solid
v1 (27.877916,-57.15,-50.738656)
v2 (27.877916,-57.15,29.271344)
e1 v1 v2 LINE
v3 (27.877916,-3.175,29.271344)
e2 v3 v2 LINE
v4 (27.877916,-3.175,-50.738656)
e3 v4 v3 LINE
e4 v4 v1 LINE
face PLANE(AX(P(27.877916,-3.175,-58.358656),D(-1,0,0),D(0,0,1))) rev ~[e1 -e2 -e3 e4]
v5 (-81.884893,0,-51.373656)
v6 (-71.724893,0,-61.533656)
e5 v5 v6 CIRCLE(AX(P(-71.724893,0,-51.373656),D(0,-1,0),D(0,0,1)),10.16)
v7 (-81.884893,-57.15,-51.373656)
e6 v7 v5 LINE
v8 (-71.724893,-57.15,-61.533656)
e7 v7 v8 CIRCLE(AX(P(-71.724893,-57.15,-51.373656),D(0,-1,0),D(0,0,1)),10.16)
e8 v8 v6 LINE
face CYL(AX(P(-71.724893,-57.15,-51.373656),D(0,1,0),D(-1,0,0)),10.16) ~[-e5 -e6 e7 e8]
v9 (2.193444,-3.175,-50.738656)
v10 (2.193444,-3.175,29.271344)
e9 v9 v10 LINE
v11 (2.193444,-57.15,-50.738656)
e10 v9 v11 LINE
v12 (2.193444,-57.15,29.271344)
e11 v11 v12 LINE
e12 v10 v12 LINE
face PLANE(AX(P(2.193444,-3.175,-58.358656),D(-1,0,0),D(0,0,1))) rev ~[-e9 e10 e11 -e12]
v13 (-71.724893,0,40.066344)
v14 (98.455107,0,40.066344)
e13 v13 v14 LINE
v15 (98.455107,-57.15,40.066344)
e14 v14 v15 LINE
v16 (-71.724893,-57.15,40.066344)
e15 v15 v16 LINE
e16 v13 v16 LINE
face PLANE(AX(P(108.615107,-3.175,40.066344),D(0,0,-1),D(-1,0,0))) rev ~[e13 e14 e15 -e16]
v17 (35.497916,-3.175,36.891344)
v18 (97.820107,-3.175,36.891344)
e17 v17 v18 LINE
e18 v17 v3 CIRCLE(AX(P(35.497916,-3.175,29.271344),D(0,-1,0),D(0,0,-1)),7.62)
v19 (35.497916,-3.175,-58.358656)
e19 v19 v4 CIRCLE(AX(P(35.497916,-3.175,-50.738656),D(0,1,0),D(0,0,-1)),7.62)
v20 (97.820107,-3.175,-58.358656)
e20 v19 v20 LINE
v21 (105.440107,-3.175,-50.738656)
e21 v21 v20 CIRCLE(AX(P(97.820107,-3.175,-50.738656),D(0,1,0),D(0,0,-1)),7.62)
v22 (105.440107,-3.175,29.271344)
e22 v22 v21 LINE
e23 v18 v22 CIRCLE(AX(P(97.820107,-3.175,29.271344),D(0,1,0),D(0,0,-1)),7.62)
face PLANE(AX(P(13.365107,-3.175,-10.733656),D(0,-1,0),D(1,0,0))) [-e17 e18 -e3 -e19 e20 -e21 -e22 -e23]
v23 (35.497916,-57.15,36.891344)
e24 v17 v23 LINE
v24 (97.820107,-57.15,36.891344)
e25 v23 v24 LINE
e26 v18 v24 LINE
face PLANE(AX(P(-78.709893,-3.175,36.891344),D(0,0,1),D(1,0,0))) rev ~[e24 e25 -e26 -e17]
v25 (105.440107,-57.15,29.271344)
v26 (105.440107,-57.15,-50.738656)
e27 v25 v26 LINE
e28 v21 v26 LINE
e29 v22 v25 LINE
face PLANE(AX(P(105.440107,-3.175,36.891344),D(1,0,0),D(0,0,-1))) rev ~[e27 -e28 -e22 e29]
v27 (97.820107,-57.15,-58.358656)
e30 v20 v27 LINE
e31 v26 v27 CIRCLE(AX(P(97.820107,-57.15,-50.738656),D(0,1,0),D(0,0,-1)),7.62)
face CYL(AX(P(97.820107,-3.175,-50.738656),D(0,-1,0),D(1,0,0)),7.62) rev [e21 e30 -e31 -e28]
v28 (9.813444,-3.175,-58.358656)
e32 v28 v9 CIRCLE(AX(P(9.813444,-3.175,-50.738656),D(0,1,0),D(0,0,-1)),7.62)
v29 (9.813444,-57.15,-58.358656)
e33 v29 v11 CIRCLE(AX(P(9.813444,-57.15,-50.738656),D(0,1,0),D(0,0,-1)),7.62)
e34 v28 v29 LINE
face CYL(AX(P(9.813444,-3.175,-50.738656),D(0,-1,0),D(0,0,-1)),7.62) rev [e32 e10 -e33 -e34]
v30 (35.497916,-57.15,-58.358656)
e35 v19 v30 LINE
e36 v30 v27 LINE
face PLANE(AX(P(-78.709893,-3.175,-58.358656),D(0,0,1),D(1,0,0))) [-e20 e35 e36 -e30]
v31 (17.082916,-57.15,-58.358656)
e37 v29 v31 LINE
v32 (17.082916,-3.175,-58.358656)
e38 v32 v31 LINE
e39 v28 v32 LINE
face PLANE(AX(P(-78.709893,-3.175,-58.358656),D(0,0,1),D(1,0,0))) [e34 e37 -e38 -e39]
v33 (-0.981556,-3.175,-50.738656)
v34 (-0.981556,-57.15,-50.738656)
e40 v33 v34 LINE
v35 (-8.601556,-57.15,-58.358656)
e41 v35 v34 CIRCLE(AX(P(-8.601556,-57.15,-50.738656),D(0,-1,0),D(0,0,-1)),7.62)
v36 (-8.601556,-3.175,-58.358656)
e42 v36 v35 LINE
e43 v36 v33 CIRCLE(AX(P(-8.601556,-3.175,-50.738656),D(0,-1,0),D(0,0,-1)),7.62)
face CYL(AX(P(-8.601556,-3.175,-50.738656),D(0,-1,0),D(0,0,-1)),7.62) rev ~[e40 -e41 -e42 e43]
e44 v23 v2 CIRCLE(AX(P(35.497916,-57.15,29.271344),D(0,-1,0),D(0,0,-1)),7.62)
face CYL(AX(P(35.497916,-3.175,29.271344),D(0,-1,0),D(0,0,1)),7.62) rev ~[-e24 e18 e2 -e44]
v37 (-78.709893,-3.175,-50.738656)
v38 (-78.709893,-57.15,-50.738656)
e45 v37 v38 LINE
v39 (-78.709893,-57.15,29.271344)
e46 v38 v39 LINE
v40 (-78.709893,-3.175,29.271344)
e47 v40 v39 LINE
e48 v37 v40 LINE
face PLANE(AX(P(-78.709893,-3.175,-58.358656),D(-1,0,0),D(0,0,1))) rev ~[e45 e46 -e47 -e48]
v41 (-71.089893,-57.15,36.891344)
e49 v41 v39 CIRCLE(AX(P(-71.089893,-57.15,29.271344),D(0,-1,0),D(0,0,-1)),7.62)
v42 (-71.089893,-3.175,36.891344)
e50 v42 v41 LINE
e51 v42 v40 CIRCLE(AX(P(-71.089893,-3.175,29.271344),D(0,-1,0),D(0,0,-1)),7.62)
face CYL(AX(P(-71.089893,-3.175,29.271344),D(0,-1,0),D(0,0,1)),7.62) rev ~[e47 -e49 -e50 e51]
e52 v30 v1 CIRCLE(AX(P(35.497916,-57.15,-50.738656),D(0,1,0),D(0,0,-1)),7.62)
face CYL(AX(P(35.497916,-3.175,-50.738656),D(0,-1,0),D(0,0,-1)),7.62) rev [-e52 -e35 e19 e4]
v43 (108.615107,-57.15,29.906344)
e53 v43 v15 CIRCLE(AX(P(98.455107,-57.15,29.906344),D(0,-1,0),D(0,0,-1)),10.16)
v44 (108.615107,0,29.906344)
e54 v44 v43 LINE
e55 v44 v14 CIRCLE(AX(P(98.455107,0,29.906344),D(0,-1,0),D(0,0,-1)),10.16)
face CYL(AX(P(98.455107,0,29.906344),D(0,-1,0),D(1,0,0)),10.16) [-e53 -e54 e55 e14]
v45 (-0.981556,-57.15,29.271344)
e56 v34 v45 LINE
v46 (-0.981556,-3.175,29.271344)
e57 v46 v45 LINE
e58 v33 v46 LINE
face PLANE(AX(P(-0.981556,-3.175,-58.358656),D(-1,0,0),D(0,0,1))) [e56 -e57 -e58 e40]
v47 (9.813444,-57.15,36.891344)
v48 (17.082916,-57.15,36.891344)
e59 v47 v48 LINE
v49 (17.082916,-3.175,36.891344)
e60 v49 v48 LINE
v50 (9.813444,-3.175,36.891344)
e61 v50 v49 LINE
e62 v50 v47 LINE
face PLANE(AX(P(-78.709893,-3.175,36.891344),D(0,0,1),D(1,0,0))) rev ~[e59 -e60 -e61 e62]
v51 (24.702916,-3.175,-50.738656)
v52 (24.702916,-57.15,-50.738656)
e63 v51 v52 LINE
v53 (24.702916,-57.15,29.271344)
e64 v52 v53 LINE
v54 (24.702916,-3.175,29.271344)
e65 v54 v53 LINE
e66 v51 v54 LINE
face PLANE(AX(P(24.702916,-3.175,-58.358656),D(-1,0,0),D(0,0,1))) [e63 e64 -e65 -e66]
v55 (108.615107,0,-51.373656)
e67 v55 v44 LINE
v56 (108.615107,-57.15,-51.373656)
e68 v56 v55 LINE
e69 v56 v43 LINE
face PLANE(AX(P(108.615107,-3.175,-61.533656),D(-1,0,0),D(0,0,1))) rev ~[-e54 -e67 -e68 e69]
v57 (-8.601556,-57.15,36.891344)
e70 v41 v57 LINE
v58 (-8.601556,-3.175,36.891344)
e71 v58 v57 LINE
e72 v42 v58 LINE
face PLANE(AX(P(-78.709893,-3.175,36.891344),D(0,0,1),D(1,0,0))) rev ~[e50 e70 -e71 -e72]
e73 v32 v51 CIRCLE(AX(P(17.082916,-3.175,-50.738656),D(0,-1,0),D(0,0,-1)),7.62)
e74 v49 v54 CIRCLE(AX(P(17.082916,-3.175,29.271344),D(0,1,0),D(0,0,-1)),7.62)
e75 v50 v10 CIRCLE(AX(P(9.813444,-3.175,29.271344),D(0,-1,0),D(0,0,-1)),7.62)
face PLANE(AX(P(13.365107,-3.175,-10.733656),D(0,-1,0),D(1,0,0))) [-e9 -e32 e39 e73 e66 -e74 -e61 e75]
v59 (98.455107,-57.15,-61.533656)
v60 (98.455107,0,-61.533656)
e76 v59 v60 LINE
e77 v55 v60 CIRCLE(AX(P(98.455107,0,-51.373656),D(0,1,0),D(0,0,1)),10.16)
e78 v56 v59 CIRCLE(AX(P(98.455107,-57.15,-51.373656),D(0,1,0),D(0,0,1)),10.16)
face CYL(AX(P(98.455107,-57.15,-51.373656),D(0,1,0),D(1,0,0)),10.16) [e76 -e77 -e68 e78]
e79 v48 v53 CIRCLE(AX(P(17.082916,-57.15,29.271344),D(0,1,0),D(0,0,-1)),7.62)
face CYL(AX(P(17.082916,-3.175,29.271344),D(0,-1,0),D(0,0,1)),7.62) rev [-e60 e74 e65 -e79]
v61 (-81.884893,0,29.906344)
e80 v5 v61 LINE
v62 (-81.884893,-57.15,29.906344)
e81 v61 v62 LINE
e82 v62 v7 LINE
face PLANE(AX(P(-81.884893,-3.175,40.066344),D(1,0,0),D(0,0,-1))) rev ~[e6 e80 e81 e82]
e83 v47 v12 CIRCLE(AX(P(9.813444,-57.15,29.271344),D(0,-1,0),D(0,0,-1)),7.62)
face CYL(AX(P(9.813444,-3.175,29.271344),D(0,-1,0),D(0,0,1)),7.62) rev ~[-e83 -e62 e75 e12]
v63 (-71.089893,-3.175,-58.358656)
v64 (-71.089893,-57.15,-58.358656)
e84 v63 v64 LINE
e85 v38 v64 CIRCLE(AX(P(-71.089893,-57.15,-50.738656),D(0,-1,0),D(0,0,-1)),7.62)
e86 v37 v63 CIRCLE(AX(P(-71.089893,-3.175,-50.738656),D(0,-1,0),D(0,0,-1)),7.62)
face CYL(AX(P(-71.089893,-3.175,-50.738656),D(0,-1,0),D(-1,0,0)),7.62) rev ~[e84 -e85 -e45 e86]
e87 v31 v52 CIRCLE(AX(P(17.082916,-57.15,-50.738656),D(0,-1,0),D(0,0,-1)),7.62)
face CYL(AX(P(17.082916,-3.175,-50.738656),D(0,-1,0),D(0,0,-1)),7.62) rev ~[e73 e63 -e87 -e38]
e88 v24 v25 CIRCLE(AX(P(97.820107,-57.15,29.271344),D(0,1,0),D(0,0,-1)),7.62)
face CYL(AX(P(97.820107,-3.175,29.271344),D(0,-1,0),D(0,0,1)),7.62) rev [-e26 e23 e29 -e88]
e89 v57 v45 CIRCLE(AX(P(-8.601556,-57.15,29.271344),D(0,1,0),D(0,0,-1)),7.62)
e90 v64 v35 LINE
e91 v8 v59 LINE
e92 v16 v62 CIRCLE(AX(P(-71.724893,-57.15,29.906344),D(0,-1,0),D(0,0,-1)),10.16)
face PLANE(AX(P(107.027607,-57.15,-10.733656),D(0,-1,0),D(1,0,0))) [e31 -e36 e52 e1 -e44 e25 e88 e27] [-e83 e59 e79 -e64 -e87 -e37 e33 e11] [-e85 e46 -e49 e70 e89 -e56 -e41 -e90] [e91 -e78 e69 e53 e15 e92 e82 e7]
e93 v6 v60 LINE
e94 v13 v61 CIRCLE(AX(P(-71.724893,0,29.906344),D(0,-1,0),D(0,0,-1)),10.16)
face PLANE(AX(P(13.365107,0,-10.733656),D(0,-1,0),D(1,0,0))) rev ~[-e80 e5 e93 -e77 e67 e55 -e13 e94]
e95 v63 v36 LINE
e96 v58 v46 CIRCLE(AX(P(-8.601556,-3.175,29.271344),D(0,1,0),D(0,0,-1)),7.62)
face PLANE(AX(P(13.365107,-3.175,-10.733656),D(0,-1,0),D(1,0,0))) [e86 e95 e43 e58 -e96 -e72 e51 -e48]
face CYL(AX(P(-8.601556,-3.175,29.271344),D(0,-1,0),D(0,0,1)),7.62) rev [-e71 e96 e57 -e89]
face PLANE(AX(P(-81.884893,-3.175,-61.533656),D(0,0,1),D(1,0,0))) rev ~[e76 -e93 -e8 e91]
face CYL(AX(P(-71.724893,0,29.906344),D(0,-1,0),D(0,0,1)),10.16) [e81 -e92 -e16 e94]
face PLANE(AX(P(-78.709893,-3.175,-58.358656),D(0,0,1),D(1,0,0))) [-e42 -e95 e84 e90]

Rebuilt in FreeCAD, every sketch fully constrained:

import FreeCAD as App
import Part
import Sketcher

V = App.Vector
Q = App.Units.Quantity


def edges_at(feature, points):
    """Names of the edges that pass closest to the given points."""
    edges = feature.Shape.Edges
    near = lambda p: min(range(len(edges)), key=lambda i: edges[i].distToShape(Part.Vertex(*p))[0])
    return sorted({f"Edge{near(p) + 1}" for p in points})


def add_polygon(sketch, points):
    """Adds a closed chain of lines whose ends are joined by coincident constraints."""
    first, n = sketch.GeometryCount, len(points)
    for a, b in zip(points, points[1:] + points[:1]):
        sketch.addGeometry(Part.LineSegment(App.Vector(*a, 0), App.Vector(*b, 0)), False)
    for i in range(n):
        sketch.addConstraint(Sketcher.Constraint("Coincident", first + i, 2, first + (i + 1) % n, 1))

doc = App.newDocument("Part")
body = doc.addObject("PartDesign::Body", "Body")

# Sketch on XZ plane
sketch1 = body.newObject("Sketcher::SketchObject", "Sketch")
sketch1.AttachmentSupport = (doc.getObject("XZ_Plane"), [""])
sketch1.MapMode = "FlatFace"
add_polygon(sketch1, [(-81.884893, 40.066344), (-81.884893, -61.533656), (108.615107, -61.533656), (108.615107, 40.066344)])  # lines 0-3
sketch1.addConstraint([
    Sketcher.Constraint("Vertical", 0),
    Sketcher.Constraint("Horizontal", 1),
    Sketcher.Constraint("Vertical", 2),
    Sketcher.Constraint("Horizontal", 3),
    Sketcher.Constraint("DistanceY", 0, 2, 0, 1, Q("4 in")),
    Sketcher.Constraint("DistanceX", 1, 1, 1, 2, Q("7.5 in")),
    Sketcher.Constraint("DistanceX", 0, 2, -1, 1, 81.884893),
    Sketcher.Constraint("DistanceY", 0, 2, -1, 1, 61.533656),
])
pad1 = body.newObject("PartDesign::Pad", "Pad")
pad1.Profile = sketch1
pad1.Length = Q("0.125 in")

# Sketch on XZ plane
sketch2 = body.newObject("Sketcher::SketchObject", "Sketch001")
sketch2.AttachmentSupport = (doc.getObject("XZ_Plane"), [""])
sketch2.MapMode = "FlatFace"
sketch2.AttachmentOffset = App.Placement(V(0, 0, 0.125 * 25.4), App.Rotation())
add_polygon(sketch2, [(108.615107, -61.533656), (108.615107, 40.066344), (-81.884893, 40.066344), (-81.884893, -61.533656)])  # lines 0-3
add_polygon(sketch2, [(-78.709893, -58.358656), (-78.709893, 36.891344), (105.440107, 36.891344), (105.440107, -58.358656)])  # lines 4-7
sketch2.addConstraint([
    Sketcher.Constraint("Vertical", 0),
    Sketcher.Constraint("Horizontal", 1),
    Sketcher.Constraint("Vertical", 2),
    Sketcher.Constraint("Horizontal", 3),
    Sketcher.Constraint("Vertical", 4),
    Sketcher.Constraint("Horizontal", 5),
    Sketcher.Constraint("Vertical", 6),
    Sketcher.Constraint("Horizontal", 7),
    Sketcher.Constraint("DistanceY", 0, 1, 0, 2, Q("4 in")),
    Sketcher.Constraint("DistanceX", 1, 2, 1, 1, Q("7.5 in")),
    Sketcher.Constraint("DistanceX", 5, 1, 5, 2, Q("7.25 in")),
    Sketcher.Constraint("DistanceY", 4, 1, 4, 2, Q("3.75 in")),
    Sketcher.Constraint("DistanceX", 1, 2, 4, 2, Q("0.125 in")),
    Sketcher.Constraint("DistanceY", 4, 2, 1, 2, Q("0.125 in")),
    Sketcher.Constraint("DistanceX", -1, 1, 0, 2, 108.615107),
    Sketcher.Constraint("DistanceY", -1, 1, 0, 2, 40.066344),
])
pad2 = body.newObject("PartDesign::Pad", "Pad001")
pad2.Profile = sketch2
pad2.Length = Q("2.125 in")

# Sketch on XZ plane
sketch3 = body.newObject("Sketcher::SketchObject", "Sketch002")
sketch3.AttachmentSupport = (doc.getObject("XZ_Plane"), [""])
sketch3.MapMode = "FlatFace"
sketch3.AttachmentOffset = App.Placement(V(0, 0, 0.125 * 25.4), App.Rotation())
add_polygon(sketch3, [(-0.981556, 36.891344), (-0.981556, -58.358656), (2.193444, -58.358656), (2.193444, 36.891344)])  # lines 0-3
sketch3.addConstraint([
    Sketcher.Constraint("Vertical", 0),
    Sketcher.Constraint("Horizontal", 1),
    Sketcher.Constraint("Vertical", 2),
    Sketcher.Constraint("Horizontal", 3),
    Sketcher.Constraint("DistanceY", 0, 2, 0, 1, Q("3.75 in")),
    Sketcher.Constraint("DistanceX", 1, 1, 1, 2, Q("0.125 in")),
    Sketcher.Constraint("DistanceX", 0, 2, -1, 1, 0.981556),
    Sketcher.Constraint("DistanceY", 0, 2, -1, 1, 58.358656),
])
pad3 = body.newObject("PartDesign::Pad", "Pad002")
pad3.Profile = sketch3
pad3.Length = Q("2.125 in")
doc.recompute()

fillet = body.newObject("PartDesign::Fillet", "Fillet")
fillet.Base = (pad3, edges_at(pad3, [
    (-0.982, -30.163, -58.359),
    (2.193, -30.163, 36.891),
    (2.193, -30.163, -58.359),
    (-0.982, -30.163, 36.891),
]))
fillet.Radius = Q("0.3 in")
doc.recompute()

fillet2 = body.newObject("PartDesign::Fillet", "Fillet001")
fillet2.Base = (fillet, edges_at(fillet, [(-78.71, -30.163, -58.359), (-78.71, -30.163, 36.891)]))
fillet2.Radius = Q("0.3 in")

# Sketch on XZ plane
sketch4 = body.newObject("Sketcher::SketchObject", "Sketch003")
sketch4.AttachmentSupport = (doc.getObject("XZ_Plane"), [""])
sketch4.MapMode = "FlatFace"
sketch4.AttachmentOffset = App.Placement(V(0, 0, 0.125 * 25.4), App.Rotation())
add_polygon(sketch4, [(24.702916, 36.891344), (24.702916, -58.358656), (27.877916, -58.358656), (27.877916, 36.891344)])  # lines 0-3
sketch4.addConstraint([
    Sketcher.Constraint("Vertical", 0),
    Sketcher.Constraint("Horizontal", 1),
    Sketcher.Constraint("Vertical", 2),
    Sketcher.Constraint("Horizontal", 3),
    Sketcher.Constraint("DistanceY", 0, 2, 0, 1, Q("3.75 in")),
    Sketcher.Constraint("DistanceX", 1, 1, 1, 2, Q("0.125 in")),
    Sketcher.Constraint("DistanceX", -1, 1, 0, 2, 24.702916),
    Sketcher.Constraint("DistanceY", 0, 2, -1, 1, 58.358656),
])
pad4 = body.newObject("PartDesign::Pad", "Pad003")
pad4.Profile = sketch4
pad4.Length = Q("2.125 in")
doc.recompute()

fillet3 = body.newObject("PartDesign::Fillet", "Fillet002")
fillet3.Base = (pad4, edges_at(pad4, [
    (24.703, -30.163, -58.359),
    (24.703, -30.163, 36.891),
    (27.878, -30.163, 36.891),
    (27.878, -30.163, -58.359),
]))
fillet3.Radius = Q("0.3 in")
doc.recompute()

fillet4 = body.newObject("PartDesign::Fillet", "Fillet003")
fillet4.Base = (fillet3, edges_at(fillet3, [(105.44, -30.163, 36.891), (105.44, -30.163, -58.359)]))
fillet4.Radius = Q("0.3 in")
doc.recompute()

fillet5 = body.newObject("PartDesign::Fillet", "Fillet004")
fillet5.Base = (fillet4, edges_at(fillet4, [
    (-81.885, -28.575, -61.534),
    (108.615, -28.575, -61.534),
    (108.615, -28.575, 40.066),
    (-81.885, -28.575, 40.066),
]))
fillet5.Radius = Q("0.4 in")

doc.recompute()
